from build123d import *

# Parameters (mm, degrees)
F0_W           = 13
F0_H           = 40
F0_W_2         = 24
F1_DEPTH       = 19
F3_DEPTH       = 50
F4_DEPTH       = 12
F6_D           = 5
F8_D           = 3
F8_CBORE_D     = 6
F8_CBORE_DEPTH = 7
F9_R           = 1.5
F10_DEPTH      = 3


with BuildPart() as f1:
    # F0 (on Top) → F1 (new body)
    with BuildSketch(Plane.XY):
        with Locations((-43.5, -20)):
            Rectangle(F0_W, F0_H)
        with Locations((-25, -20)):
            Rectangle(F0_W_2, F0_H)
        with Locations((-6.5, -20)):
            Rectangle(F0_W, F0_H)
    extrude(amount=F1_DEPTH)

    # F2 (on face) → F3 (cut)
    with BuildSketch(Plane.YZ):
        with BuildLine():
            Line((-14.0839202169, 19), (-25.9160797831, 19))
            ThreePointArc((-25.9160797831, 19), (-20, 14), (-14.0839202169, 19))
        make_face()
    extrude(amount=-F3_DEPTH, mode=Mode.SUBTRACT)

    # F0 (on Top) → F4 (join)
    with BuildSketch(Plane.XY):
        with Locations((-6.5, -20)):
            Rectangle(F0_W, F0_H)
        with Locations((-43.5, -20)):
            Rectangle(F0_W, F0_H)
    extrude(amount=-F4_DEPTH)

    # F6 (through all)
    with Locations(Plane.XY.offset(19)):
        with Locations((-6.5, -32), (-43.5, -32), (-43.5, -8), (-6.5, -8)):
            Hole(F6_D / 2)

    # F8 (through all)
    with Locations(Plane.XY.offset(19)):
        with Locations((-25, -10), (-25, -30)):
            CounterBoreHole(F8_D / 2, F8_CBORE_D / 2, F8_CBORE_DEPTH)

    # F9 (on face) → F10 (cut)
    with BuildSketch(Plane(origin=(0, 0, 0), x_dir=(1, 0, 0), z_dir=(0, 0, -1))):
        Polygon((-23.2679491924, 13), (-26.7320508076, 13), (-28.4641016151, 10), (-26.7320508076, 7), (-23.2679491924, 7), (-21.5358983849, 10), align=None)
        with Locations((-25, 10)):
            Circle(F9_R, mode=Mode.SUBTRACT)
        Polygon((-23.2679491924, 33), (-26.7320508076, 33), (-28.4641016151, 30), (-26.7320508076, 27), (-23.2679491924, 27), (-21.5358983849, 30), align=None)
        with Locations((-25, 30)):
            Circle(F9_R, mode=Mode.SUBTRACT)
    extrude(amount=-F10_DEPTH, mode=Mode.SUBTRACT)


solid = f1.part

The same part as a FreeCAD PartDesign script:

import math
import FreeCAD as App
import Part
import Sketcher

V = App.Vector
Q = App.Units.Quantity

doc = App.newDocument("Part")
body = doc.addObject("PartDesign::Body", "Body")

sketch1 = body.newObject("Sketcher::SketchObject", "Sketch")
sketch1.AttachmentSupport = (doc.getObject("XY_Plane"), [""])
sketch1.MapMode = "FlatFace"
sketch1.addGeometry(Part.LineSegment(V(-50, 0, 0), V(-50, -40, 0)), False)
sketch1.addGeometry(Part.LineSegment(V(-50, -40, 0), V(0, -40, 0)), False)
sketch1.addGeometry(Part.LineSegment(V(0, -40, 0), V(0, 0, 0)), False)
sketch1.addGeometry(Part.LineSegment(V(0, 0, 0), V(-50, 0, 0)), False)
sketch1.addConstraint(Sketcher.Constraint("Coincident", 0, 2, 1, 1))
sketch1.addConstraint(Sketcher.Constraint("Coincident", 1, 2, 2, 1))
sketch1.addConstraint(Sketcher.Constraint("Coincident", 2, 2, 3, 1))
sketch1.addConstraint(Sketcher.Constraint("Coincident", 3, 2, 0, 1))
sketch1.addConstraint(Sketcher.Constraint("Vertical", 0))
sketch1.addConstraint(Sketcher.Constraint("Horizontal", 1))
sketch1.addConstraint(Sketcher.Constraint("Vertical", 2))
sketch1.addConstraint(Sketcher.Constraint("Horizontal", 3))
sketch1.addConstraint(Sketcher.Constraint("Coincident", 2, 2, -1, 1))
sketch1.addConstraint(Sketcher.Constraint("DistanceX", 1, 1, 1, 2, Q("50 mm")))
sketch1.addConstraint(Sketcher.Constraint("DistanceY", 0, 2, 0, 1, Q("40 mm")))
pad1 = body.newObject("PartDesign::Pad", "Pad")
pad1.Profile = sketch1
pad1.Length = 19

sketch2 = body.newObject("Sketcher::SketchObject", "Sketch001")
sketch2.AttachmentSupport = (doc.getObject("YZ_Plane"), [""])
sketch2.MapMode = "FlatFace"
sketch2.addGeometry(Part.LineSegment(V(-14.08392, 19, 0), V(-25.91608, 19, 0)), False)
sketch2.addGeometry(Part.ArcOfCircle(Part.Circle(V(-20, 20, 0), V(0, 0, 1), 6), math.radians(-170.405932), math.radians(-9.594068)), False)
sketch2.addConstraint(Sketcher.Constraint("Coincident", 0, 1, 1, 2))
sketch2.addConstraint(Sketcher.Constraint("Coincident", 1, 1, 0, 2))
sketch2.addConstraint(Sketcher.Constraint("Horizontal", 0))
sketch2.addConstraint(Sketcher.Constraint("Radius", 1, Q("6 mm")))
sketch2.addConstraint(Sketcher.Constraint("DistanceX", 1, 3, -1, 1, Q("20 mm")))
sketch2.addConstraint(Sketcher.Constraint("DistanceY", -1, 1, 1, 3, Q("20 mm")))
sketch2.addConstraint(Sketcher.Constraint("DistanceY", -1, 1, 0, 1, Q("19 mm")))
pocket1 = body.newObject("PartDesign::Pocket", "Pocket")
pocket1.Profile = sketch2
pocket1.Length = 50

sketch3 = body.newObject("Sketcher::SketchObject", "Sketch002")
sketch3.AttachmentSupport = (doc.getObject("XY_Plane"), [""])
sketch3.MapMode = "FlatFace"
sketch3.addGeometry(Part.LineSegment(V(-13, 0, 0), V(-13, -40, 0)), False)
sketch3.addGeometry(Part.LineSegment(V(-13, -40, 0), V(0, -40, 0)), False)
sketch3.addGeometry(Part.LineSegment(V(0, -40, 0), V(0, 0, 0)), False)
sketch3.addGeometry(Part.LineSegment(V(0, 0, 0), V(-13, 0, 0)), False)
sketch3.addGeometry(Part.LineSegment(V(-50, 0, 0), V(-50, -40, 0)), False)
sketch3.addGeometry(Part.LineSegment(V(-50, -40, 0), V(-37, -40, 0)), False)
sketch3.addGeometry(Part.LineSegment(V(-37, -40, 0), V(-37, 0, 0)), False)
sketch3.addGeometry(Part.LineSegment(V(-37, 0, 0), V(-50, 0, 0)), False)
sketch3.addConstraint(Sketcher.Constraint("Coincident", 0, 2, 1, 1))
sketch3.addConstraint(Sketcher.Constraint("Coincident", 1, 2, 2, 1))
sketch3.addConstraint(Sketcher.Constraint("Coincident", 2, 2, 3, 1))
sketch3.addConstraint(Sketcher.Constraint("Coincident", 3, 2, 0, 1))
sketch3.addConstraint(Sketcher.Constraint("Coincident", 4, 2, 5, 1))
sketch3.addConstraint(Sketcher.Constraint("Coincident", 5, 2, 6, 1))
sketch3.addConstraint(Sketcher.Constraint("Coincident", 6, 2, 7, 1))
sketch3.addConstraint(Sketcher.Constraint("Coincident", 7, 2, 4, 1))
sketch3.addConstraint(Sketcher.Constraint("Vertical", 0))
sketch3.addConstraint(Sketcher.Constraint("Horizontal", 1))
sketch3.addConstraint(Sketcher.Constraint("Vertical", 2))
sketch3.addConstraint(Sketcher.Constraint("Horizontal", 3))
sketch3.addConstraint(Sketcher.Constraint("Vertical", 4))
sketch3.addConstraint(Sketcher.Constraint("Horizontal", 5))
sketch3.addConstraint(Sketcher.Constraint("Vertical", 6))
sketch3.addConstraint(Sketcher.Constraint("Horizontal", 7))
sketch3.addConstraint(Sketcher.Constraint("Coincident", 2, 2, -1, 1))
sketch3.addConstraint(Sketcher.Constraint("PointOnObject", 6, 2, -1))
sketch3.addConstraint(Sketcher.Constraint("Horizontal", 1, 2, 4, 2))
sketch3.addConstraint(Sketcher.Constraint("Equal", 3, 5))
sketch3.addConstraint(Sketcher.Constraint("DistanceX", 1, 1, 1, 2, Q("13 mm")))
sketch3.addConstraint(Sketcher.Constraint("DistanceY", 0, 2, 0, 1, Q("40 mm")))
sketch3.addConstraint(Sketcher.Constraint("DistanceX", 4, 2, -1, 1, Q("50 mm")))
pad2 = body.newObject("PartDesign::Pad", "Pad001")
pad2.Profile = sketch3
pad2.Length = 12
pad2.Reversed = True

sketch4 = body.newObject("Sketcher::SketchObject", "Sketch003")
sketch4.AttachmentSupport = (doc.getObject("XY_Plane"), [""])
sketch4.MapMode = "FlatFace"
sketch4.AttachmentOffset = App.Placement(V(0, 0, 19), App.Rotation())
sketch4.addGeometry(Part.Circle(V(-6.5, -32, 0), V(0, 0, 1), 2.5), False)
sketch4.addGeometry(Part.Circle(V(-43.5, -32, 0), V(0, 0, 1), 2.5), False)
sketch4.addGeometry(Part.Circle(V(-43.5, -8, 0), V(0, 0, 1), 2.5), False)
sketch4.addGeometry(Part.Circle(V(-6.5, -8, 0), V(0, 0, 1), 2.5), False)
sketch4.addConstraint(Sketcher.Constraint("Equal", 0, 1))
sketch4.addConstraint(Sketcher.Constraint("Equal", 1, 2))
sketch4.addConstraint(Sketcher.Constraint("Equal", 2, 3))
sketch4.addConstraint(Sketcher.Constraint("Horizontal", 0, 3, 1, 3))
sketch4.addConstraint(Sketcher.Constraint("Horizontal", 2, 3, 3, 3))
sketch4.addConstraint(Sketcher.Constraint("Vertical", 1, 3, 2, 3))
sketch4.addConstraint(Sketcher.Constraint("Vertical", 0, 3, 3, 3))
sketch4.addConstraint(Sketcher.Constraint("Diameter", 0, Q("5 mm")))
sketch4.addConstraint(Sketcher.Constraint("DistanceY", 0, 3, -1, 1, Q("32 mm")))
sketch4.addConstraint(Sketcher.Constraint("DistanceY", 2, 3, -1, 1, Q("8 mm")))
sketch4.addConstraint(Sketcher.Constraint("DistanceX", 1, 3, 0, 3, Q("37 mm")))
sketch4.addConstraint(Sketcher.Constraint("DistanceX", 0, 3, -1, 1, Q("6.5 mm")))
doc.recompute()
hole = body.newObject("PartDesign::Hole", "Hole")
hole.Profile = sketch4
hole.ThreadType = "None"
hole.Diameter = 5
hole.DepthType = "ThroughAll"

sketch5 = body.newObject("Sketcher::SketchObject", "Sketch004")
sketch5.AttachmentSupport = (doc.getObject("XY_Plane"), [""])
sketch5.MapMode = "FlatFace"
sketch5.AttachmentOffset = App.Placement(V(0, 0, 19), App.Rotation())
sketch5.addGeometry(Part.Circle(V(-25, -10, 0), V(0, 0, 1), 1.5), False)
sketch5.addGeometry(Part.Circle(V(-25, -30, 0), V(0, 0, 1), 1.5), False)
sketch5.addConstraint(Sketcher.Constraint("Equal", 0, 1))
sketch5.addConstraint(Sketcher.Constraint("Vertical", 0, 3, 1, 3))
sketch5.addConstraint(Sketcher.Constraint("Diameter", 0, Q("3 mm")))
sketch5.addConstraint(Sketcher.Constraint("DistanceX", 0, 3, -1, 1, Q("25 mm")))
sketch5.addConstraint(Sketcher.Constraint("DistanceY", 0, 3, -1, 1, Q("10 mm")))
sketch5.addConstraint(Sketcher.Constraint("DistanceY", 1, 3, -1, 1, Q("30 mm")))
doc.recompute()
hole2 = body.newObject("PartDesign::Hole", "Hole001")
hole2.Profile = sketch5
hole2.ThreadType = "None"
hole2.Diameter = 3
hole2.DepthType = "ThroughAll"
hole2.HoleCutType = "Counterbore"
hole2.HoleCutDiameter = 6
hole2.HoleCutDepth = 7

sketch6 = body.newObject("Sketcher::SketchObject", "Sketch005")
sketch6.AttachmentSupport = (doc.getObject("XY_Plane"), [""])
sketch6.MapMode = "FlatFace"
sketch6.addGeometry(Part.LineSegment(V(-23.267949, -13, 0), V(-26.732051, -13, 0)), False)
sketch6.addGeometry(Part.LineSegment(V(-26.732051, -13, 0), V(-28.464102, -10, 0)), False)
sketch6.addGeometry(Part.LineSegment(V(-28.464102, -10, 0), V(-26.732051, -7, 0)), False)
sketch6.addGeometry(Part.LineSegment(V(-26.732051, -7, 0), V(-23.267949, -7, 0)), False)
sketch6.addGeometry(Part.LineSegment(V(-23.267949, -7, 0), V(-21.535898, -10, 0)), False)
sketch6.addGeometry(Part.LineSegment(V(-21.535898, -10, 0), V(-23.267949, -13, 0)), False)
sketch6.addGeometry(Part.Circle(V(-25, -10, 0), V(0, 0, 1), 1.5), False)
sketch6.addGeometry(Part.LineSegment(V(-23.267949, -33, 0), V(-26.732051, -33, 0)), False)
sketch6.addGeometry(Part.LineSegment(V(-26.732051, -33, 0), V(-28.464102, -30, 0)), False)
sketch6.addGeometry(Part.LineSegment(V(-28.464102, -30, 0), V(-26.732051, -27, 0)), False)
sketch6.addGeometry(Part.LineSegment(V(-26.732051, -27, 0), V(-23.267949, -27, 0)), False)
sketch6.addGeometry(Part.LineSegment(V(-23.267949, -27, 0), V(-21.535898, -30, 0)), False)
sketch6.addGeometry(Part.LineSegment(V(-21.535898, -30, 0), V(-23.267949, -33, 0)), False)
sketch6.addGeometry(Part.Circle(V(-25, -30, 0), V(0, 0, 1), 1.5), False)
sketch6.addConstraint(Sketcher.Constraint("Coincident", 0, 2, 1, 1))
sketch6.addConstraint(Sketcher.Constraint("Coincident", 1, 2, 2, 1))
sketch6.addConstraint(Sketcher.Constraint("Coincident", 2, 2, 3, 1))
sketch6.addConstraint(Sketcher.Constraint("Coincident", 3, 2, 4, 1))
sketch6.addConstraint(Sketcher.Constraint("Coincident", 4, 2, 5, 1))
sketch6.addConstraint(Sketcher.Constraint("Coincident", 5, 2, 0, 1))
sketch6.addConstraint(Sketcher.Constraint("Coincident", 7, 2, 8, 1))
sketch6.addConstraint(Sketcher.Constraint("Coincident", 8, 2, 9, 1))
sketch6.addConstraint(Sketcher.Constraint("Coincident", 9, 2, 10, 1))
sketch6.addConstraint(Sketcher.Constraint("Coincident", 10, 2, 11, 1))
sketch6.addConstraint(Sketcher.Constraint("Coincident", 11, 2, 12, 1))
sketch6.addConstraint(Sketcher.Constraint("Coincident", 12, 2, 7, 1))
sketch6.addConstraint(Sketcher.Constraint("Horizontal", 0))
sketch6.addConstraint(Sketcher.Constraint("Horizontal", 3))
sketch6.addConstraint(Sketcher.Constraint("Horizontal", 7))
sketch6.addConstraint(Sketcher.Constraint("Horizontal", 10))
sketch6.addConstraint(Sketcher.Constraint("Equal", 6, 13))
sketch6.addConstraint(Sketcher.Constraint("Parallel", 1, 4))
sketch6.addConstraint(Sketcher.Constraint("Parallel", 2, 5))
sketch6.addConstraint(Sketcher.Constraint("Parallel", 4, 8))
sketch6.addConstraint(Sketcher.Constraint("Parallel", 5, 9))
sketch6.addConstraint(Sketcher.Constraint("Parallel", 8, 11))
sketch6.addConstraint(Sketcher.Constraint("Parallel", 9, 12))
sketch6.addConstraint(Sketcher.Constraint("Horizontal", 6, 3, 1, 2))
sketch6.addConstraint(Sketcher.Constraint("Horizontal", 1, 2, 4, 2))
sketch6.addConstraint(Sketcher.Constraint("Horizontal", 13, 3, 8, 2))
sketch6.addConstraint(Sketcher.Constraint("Horizontal", 8, 2, 11, 2))
sketch6.addConstraint(Sketcher.Constraint("Vertical", 6, 3, 13, 3))
sketch6.addConstraint(Sketcher.Constraint("Vertical", 0, 2, 2, 2))
sketch6.addConstraint(Sketcher.Constraint("Vertical", 3, 2, 5, 2))
sketch6.addConstraint(Sketcher.Constraint("Vertical", 2, 2, 7, 2))
sketch6.addConstraint(Sketcher.Constraint("Vertical", 1, 2, 8, 2))
sketch6.addConstraint(Sketcher.Constraint("Vertical", 7, 2, 9, 2))
sketch6.addConstraint(Sketcher.Constraint("Vertical", 5, 2, 10, 2))
sketch6.addConstraint(Sketcher.Constraint("Diameter", 6, Q("3 mm")))
sketch6.addConstraint(Sketcher.Constraint("Angle", 1, Q("120 deg")))
sketch6.addConstraint(Sketcher.Constraint("DistanceX", 6, 3, -1, 1, Q("25 mm")))
sketch6.addConstraint(Sketcher.Constraint("DistanceY", 6, 3, -1, 1, Q("10 mm")))
sketch6.addConstraint(Sketcher.Constraint("DistanceY", 13, 3, -1, 1, Q("30 mm")))
sketch6.addConstraint(Sketcher.Constraint("DistanceY", 0, 2, -1, 1, Q("13 mm")))
sketch6.addConstraint(Sketcher.Constraint("DistanceX", 0, 2, 0, 1, Q("3.464102 mm")))
sketch6.addConstraint(Sketcher.Constraint("DistanceX", 1, 2, -1, 1, Q("28.464102 mm")))
pocket2 = body.newObject("PartDesign::Pocket", "Pocket001")
pocket2.Profile = sketch6
pocket2.Length = 3
pocket2.Reversed = True

doc.recompute()
